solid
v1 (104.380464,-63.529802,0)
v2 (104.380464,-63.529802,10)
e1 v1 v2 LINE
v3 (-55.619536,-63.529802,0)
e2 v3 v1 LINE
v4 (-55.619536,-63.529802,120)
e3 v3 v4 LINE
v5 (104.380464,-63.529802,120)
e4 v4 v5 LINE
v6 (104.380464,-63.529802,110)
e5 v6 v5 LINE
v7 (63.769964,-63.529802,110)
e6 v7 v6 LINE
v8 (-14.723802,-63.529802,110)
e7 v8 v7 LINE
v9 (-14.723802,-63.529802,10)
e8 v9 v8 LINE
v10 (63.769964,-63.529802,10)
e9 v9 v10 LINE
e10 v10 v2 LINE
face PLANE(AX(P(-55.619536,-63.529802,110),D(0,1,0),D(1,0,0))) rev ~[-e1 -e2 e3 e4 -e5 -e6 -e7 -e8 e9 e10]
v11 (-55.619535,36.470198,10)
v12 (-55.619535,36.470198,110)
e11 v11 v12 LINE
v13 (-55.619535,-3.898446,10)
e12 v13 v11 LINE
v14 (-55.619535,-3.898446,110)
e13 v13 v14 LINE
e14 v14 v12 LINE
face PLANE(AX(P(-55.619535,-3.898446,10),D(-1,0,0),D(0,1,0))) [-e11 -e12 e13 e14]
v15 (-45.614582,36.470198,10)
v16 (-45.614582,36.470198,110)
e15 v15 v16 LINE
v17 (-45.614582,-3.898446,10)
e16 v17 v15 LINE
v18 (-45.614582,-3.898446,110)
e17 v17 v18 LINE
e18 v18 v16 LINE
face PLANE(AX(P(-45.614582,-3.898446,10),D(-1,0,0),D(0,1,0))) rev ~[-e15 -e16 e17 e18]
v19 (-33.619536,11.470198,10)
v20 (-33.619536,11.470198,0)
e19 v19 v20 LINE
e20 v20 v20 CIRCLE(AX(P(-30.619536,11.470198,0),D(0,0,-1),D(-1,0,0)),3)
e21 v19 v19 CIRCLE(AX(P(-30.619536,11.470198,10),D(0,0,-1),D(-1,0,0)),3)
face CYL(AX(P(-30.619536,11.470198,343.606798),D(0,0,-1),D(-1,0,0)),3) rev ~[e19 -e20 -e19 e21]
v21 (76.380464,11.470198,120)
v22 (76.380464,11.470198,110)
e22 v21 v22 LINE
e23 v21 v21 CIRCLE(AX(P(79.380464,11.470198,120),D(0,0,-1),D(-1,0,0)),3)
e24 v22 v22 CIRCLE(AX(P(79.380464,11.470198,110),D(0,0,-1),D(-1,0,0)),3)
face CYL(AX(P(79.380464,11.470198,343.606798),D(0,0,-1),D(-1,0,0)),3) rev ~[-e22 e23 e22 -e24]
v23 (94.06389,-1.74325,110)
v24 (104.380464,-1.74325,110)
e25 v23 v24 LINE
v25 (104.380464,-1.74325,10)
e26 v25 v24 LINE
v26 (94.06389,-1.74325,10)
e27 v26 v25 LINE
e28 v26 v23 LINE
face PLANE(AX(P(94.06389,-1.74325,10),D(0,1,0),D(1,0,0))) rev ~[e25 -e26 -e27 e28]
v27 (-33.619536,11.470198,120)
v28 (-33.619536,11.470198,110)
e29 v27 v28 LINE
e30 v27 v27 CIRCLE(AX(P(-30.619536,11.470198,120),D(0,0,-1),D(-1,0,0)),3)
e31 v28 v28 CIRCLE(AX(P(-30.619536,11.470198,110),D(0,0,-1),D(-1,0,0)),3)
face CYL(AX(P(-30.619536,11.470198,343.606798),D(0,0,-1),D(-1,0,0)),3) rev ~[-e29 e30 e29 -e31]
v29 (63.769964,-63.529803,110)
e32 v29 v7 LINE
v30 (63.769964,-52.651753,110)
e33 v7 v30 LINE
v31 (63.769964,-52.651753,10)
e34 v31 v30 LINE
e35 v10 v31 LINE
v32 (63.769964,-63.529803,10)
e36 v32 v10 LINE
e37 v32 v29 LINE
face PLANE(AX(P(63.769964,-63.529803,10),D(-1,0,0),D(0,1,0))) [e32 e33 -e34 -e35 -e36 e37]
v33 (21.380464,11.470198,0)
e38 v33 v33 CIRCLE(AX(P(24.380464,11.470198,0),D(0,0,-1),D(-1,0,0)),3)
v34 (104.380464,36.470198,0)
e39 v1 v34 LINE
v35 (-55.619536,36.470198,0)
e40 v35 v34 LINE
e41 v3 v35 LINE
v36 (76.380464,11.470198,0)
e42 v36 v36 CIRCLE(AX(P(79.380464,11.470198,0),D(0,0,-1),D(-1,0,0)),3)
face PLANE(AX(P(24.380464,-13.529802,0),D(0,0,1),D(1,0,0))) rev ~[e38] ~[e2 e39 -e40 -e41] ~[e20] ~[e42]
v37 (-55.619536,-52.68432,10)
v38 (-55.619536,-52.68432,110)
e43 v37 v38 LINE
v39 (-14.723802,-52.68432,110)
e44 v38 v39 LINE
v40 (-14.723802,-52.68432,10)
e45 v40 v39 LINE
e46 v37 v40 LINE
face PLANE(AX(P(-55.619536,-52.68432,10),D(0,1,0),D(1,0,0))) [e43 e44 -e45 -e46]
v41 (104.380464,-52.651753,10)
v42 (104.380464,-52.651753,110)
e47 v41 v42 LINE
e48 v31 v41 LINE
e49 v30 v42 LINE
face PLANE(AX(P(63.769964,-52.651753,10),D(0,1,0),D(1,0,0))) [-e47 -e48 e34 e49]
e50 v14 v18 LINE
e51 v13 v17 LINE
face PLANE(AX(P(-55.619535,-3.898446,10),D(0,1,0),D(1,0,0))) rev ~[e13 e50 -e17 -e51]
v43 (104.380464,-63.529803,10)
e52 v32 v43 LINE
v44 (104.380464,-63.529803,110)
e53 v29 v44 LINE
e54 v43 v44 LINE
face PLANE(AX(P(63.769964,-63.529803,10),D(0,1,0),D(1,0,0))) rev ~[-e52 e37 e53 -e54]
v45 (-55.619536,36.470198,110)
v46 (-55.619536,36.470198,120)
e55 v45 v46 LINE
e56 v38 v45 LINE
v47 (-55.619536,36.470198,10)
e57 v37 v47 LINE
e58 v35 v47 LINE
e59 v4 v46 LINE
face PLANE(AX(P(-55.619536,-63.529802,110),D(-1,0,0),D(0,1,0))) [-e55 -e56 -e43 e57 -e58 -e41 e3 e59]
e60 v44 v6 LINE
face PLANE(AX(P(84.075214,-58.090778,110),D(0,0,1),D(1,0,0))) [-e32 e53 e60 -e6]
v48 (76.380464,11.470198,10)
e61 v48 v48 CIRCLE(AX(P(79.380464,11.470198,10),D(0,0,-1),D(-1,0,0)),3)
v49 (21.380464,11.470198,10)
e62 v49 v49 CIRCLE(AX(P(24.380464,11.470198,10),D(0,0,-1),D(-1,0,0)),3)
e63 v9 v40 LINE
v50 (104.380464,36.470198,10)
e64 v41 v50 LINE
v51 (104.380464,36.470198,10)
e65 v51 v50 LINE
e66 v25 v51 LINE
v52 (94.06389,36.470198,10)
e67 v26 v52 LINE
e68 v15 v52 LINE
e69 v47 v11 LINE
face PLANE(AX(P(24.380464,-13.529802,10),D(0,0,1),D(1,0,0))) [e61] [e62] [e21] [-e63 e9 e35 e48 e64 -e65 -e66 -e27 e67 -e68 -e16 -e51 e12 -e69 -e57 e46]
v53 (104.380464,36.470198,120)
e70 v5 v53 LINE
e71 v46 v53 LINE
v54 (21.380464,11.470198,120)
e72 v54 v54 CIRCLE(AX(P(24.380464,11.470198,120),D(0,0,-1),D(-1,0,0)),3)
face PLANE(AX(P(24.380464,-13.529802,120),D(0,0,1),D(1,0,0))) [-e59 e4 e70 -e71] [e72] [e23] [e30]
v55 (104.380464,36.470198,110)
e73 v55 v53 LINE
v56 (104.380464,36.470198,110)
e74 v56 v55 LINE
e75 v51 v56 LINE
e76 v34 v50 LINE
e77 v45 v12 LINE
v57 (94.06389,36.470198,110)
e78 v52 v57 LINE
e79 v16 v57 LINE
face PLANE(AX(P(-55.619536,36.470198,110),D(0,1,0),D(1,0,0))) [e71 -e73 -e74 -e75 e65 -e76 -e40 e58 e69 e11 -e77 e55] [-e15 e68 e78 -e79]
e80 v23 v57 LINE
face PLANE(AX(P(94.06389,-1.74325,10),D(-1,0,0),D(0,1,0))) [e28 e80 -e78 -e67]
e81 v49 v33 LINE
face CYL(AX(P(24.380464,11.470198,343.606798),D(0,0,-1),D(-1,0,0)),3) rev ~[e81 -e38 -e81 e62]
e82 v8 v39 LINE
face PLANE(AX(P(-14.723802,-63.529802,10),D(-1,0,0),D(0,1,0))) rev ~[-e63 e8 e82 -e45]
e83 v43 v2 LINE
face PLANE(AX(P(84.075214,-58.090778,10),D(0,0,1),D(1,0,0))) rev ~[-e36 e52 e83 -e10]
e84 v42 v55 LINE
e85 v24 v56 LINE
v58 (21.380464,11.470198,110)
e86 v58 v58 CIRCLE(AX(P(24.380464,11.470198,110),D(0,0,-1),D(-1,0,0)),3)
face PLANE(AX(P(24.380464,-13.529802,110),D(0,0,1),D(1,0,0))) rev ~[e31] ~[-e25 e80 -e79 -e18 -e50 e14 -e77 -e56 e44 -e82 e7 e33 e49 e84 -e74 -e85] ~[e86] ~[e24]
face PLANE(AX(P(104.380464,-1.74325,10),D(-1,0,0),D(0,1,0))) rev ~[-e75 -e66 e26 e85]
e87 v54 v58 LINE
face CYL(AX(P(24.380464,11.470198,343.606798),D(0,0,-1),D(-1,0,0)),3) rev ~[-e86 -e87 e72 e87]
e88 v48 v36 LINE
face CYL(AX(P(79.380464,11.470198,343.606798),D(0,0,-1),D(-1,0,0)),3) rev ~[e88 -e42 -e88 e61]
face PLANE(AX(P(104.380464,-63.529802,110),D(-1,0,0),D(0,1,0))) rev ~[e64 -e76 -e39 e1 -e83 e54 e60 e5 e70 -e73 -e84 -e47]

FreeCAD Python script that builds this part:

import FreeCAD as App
import Part
import Sketcher
Q = App.Units.Quantity


def add_polygon(sketch, points):
    """Adds a closed chain of lines whose ends are joined by coincident constraints."""
    first, n = sketch.GeometryCount, len(points)
    for a, b in zip(points, points[1:] + points[:1]):
        sketch.addGeometry(Part.LineSegment(App.Vector(*a, 0), App.Vector(*b, 0)), False)
    for i in range(n):
        sketch.addConstraint(Sketcher.Constraint("Coincident", first + i, 2, first + (i + 1) % n, 1))

doc = App.newDocument("Part")
body = doc.addObject("PartDesign::Body", "Body")

# Sketch on XY plane
sketch1 = body.newObject("Sketcher::SketchObject", "Sketch")
sketch1.AttachmentSupport = (doc.getObject("XY_Plane"), [""])
sketch1.MapMode = "FlatFace"
add_polygon(sketch1, [(-55.619536, 36.470198), (-55.619536, -63.529802), (104.380464, -63.529802), (104.380464, 36.470198)])  # lines 0-3
sketch1.addConstraint([
    Sketcher.Constraint("Vertical", 0),
    Sketcher.Constraint("Horizontal", 1),
    Sketcher.Constraint("Vertical", 2),
    Sketcher.Constraint("Horizontal", 3),
    Sketcher.Constraint("DistanceX", 1, 1, 1, 2, Q("160 mm")),
    Sketcher.Constraint("DistanceY", 0, 2, 0, 1, Q("100 mm")),
    Sketcher.Constraint("DistanceY", 0, 2, -1, 1, Q("63.529802 mm")),
    Sketcher.Constraint("DistanceX", 0, 2, -1, 1, Q("55.619536 mm")),
])
pad1 = body.newObject("PartDesign::Pad", "Pad")
pad1.Profile = sketch1
pad1.Length = 10

# Sketch on XY plane
sketch2 = body.newObject("Sketcher::SketchObject", "Sketch001")
sketch2.AttachmentSupport = (doc.getObject("XY_Plane"), [""])
sketch2.MapMode = "FlatFace"
sketch2.AttachmentOffset = App.Placement(App.Vector(0, 0, 10), App.Rotation())
add_polygon(sketch2, [(-55.619536, -52.68432), (-55.619536, -63.529802), (-14.723802, -63.529802), (-14.723802, -52.68432)])  # lines 0-3
sketch2.addConstraint([
    Sketcher.Constraint("Vertical", 0),
    Sketcher.Constraint("Horizontal", 1),
    Sketcher.Constraint("Vertical", 2),
    Sketcher.Constraint("Horizontal", 3),
    Sketcher.Constraint("DistanceY", 0, 2, 0, 1, Q("10.845482 mm")),
    Sketcher.Constraint("DistanceY", 0, 2, -1, 1, Q("63.529802 mm")),
    Sketcher.Constraint("DistanceX", 1, 2, -1, 1, Q("14.723802 mm")),
    Sketcher.Constraint("DistanceX", 1, 1, 1, 2, Q("40.895734 mm")),
])
pad2 = body.newObject("PartDesign::Pad", "Pad001")
pad2.Profile = sketch2
pad2.Length = 100

# Sketch on XY plane
sketch3 = body.newObject("Sketcher::SketchObject", "Sketch002")
sketch3.AttachmentSupport = (doc.getObject("XY_Plane"), [""])
sketch3.MapMode = "FlatFace"
sketch3.AttachmentOffset = App.Placement(App.Vector(0, 0, 10), App.Rotation())
add_polygon(sketch3, [(63.769964, -52.651753), (63.769964, -63.529803), (104.380464, -63.529803), (104.380464, -52.651753)])  # lines 0-3
sketch3.addConstraint([
    Sketcher.Constraint("Vertical", 0),
    Sketcher.Constraint("Horizontal", 1),
    Sketcher.Constraint("Vertical", 2),
    Sketcher.Constraint("Horizontal", 3),
    Sketcher.Constraint("DistanceX", 1, 1, 1, 2, Q("40.6105 mm")),
    Sketcher.Constraint("DistanceY", 0, 2, 0, 1, Q("10.878049 mm")),
    Sketcher.Constraint("DistanceX", -1, 1, 0, 2, Q("63.769964 mm")),
    Sketcher.Constraint("DistanceY", 0, 2, -1, 1, Q("63.529803 mm")),
])
pad3 = body.newObject("PartDesign::Pad", "Pad002")
pad3.Profile = sketch3
pad3.Length = 100

# Sketch on XY plane
sketch4 = body.newObject("Sketcher::SketchObject", "Sketch003")
sketch4.AttachmentSupport = (doc.getObject("XY_Plane"), [""])
sketch4.MapMode = "FlatFace"
sketch4.AttachmentOffset = App.Placement(App.Vector(0, 0, 10), App.Rotation())
add_polygon(sketch4, [(94.06389, 36.470198), (94.06389, -1.74325), (104.380464, -1.74325), (104.380464, 36.470198)])  # lines 0-3
sketch4.addConstraint([
    Sketcher.Constraint("Vertical", 0),
    Sketcher.Constraint("Horizontal", 1),
    Sketcher.Constraint("Vertical", 2),
    Sketcher.Constraint("Horizontal", 3),
    Sketcher.Constraint("DistanceY", 0, 2, 0, 1, Q("38.213448 mm")),
    Sketcher.Constraint("DistanceY", -1, 1, 2, 2, Q("36.470198 mm")),
    Sketcher.Constraint("DistanceX", 1, 1, 1, 2, Q("10.316573 mm")),
    Sketcher.Constraint("DistanceX", -1, 1, 0, 2, Q("94.06389 mm")),
])
pad4 = body.newObject("PartDesign::Pad", "Pad003")
pad4.Profile = sketch4
pad4.Length = 100

# Sketch on XY plane
sketch5 = body.newObject("Sketcher::SketchObject", "Sketch004")
sketch5.AttachmentSupport = (doc.getObject("XY_Plane"), [""])
sketch5.MapMode = "FlatFace"
sketch5.AttachmentOffset = App.Placement(App.Vector(0, 0, 10), App.Rotation())
add_polygon(sketch5, [(-55.619535, 36.470198), (-55.619535, -3.898446), (-45.614582, -3.898446), (-45.614582, 36.470198)])  # lines 0-3
sketch5.addConstraint([
    Sketcher.Constraint("Vertical", 0),
    Sketcher.Constraint("Horizontal", 1),
    Sketcher.Constraint("Vertical", 2),
    Sketcher.Constraint("Horizontal", 3),
    Sketcher.Constraint("DistanceY", -1, 1, 2, 2, Q("36.470198 mm")),
    Sketcher.Constraint("DistanceX", 1, 1, 1, 2, Q("10.004953 mm")),
    Sketcher.Constraint("DistanceY", 0, 2, 0, 1, Q("40.368644 mm")),
    Sketcher.Constraint("DistanceX", 0, 2, -1, 1, Q("55.619535 mm")),
])
pad5 = body.newObject("PartDesign::Pad", "Pad004")
pad5.Profile = sketch5
pad5.Length = 100

# Sketch on XY plane
sketch6 = body.newObject("Sketcher::SketchObject", "Sketch005")
sketch6.AttachmentSupport = (doc.getObject("XY_Plane"), [""])
sketch6.MapMode = "FlatFace"
sketch6.AttachmentOffset = App.Placement(App.Vector(0, 0, 110), App.Rotation())
add_polygon(sketch6, [(-55.619536, 36.470198), (-55.619536, -63.529802), (104.380464, -63.529802), (104.380464, 36.470198)])  # lines 0-3
sketch6.addConstraint([
    Sketcher.Constraint("Vertical", 0),
    Sketcher.Constraint("Horizontal", 1),
    Sketcher.Constraint("Vertical", 2),
    Sketcher.Constraint("Horizontal", 3),
    Sketcher.Constraint("DistanceX", 1, 1, 1, 2, Q("160 mm")),
    Sketcher.Constraint("DistanceY", 0, 2, 0, 1, Q("100 mm")),
    Sketcher.Constraint("DistanceY", 0, 2, -1, 1, Q("63.529802 mm")),
    Sketcher.Constraint("DistanceX", 0, 2, -1, 1, Q("55.619536 mm")),
])
pad6 = body.newObject("PartDesign::Pad", "Pad005")
pad6.Profile = sketch6
pad6.Length = 10

# Sketch on XY plane
sketch7 = body.newObject("Sketcher::SketchObject", "Sketch006")
sketch7.AttachmentSupport = (doc.getObject("XY_Plane"), [""])
sketch7.MapMode = "FlatFace"
sketch7.AttachmentOffset = App.Placement(App.Vector(0, 0, 120), App.Rotation())
sketch7.addGeometry([
    Part.Circle(App.Vector(79.380464, 11.470198, 0), App.Vector(0, 0, 1), 3),
    Part.Circle(App.Vector(24.380464, 11.470198, 0), App.Vector(0, 0, 1), 3),
    Part.Circle(App.Vector(-30.619536, 11.470198, 0), App.Vector(0, 0, 1), 3),
], False)
sketch7.addConstraint([
    Sketcher.Constraint("Equal", 0, 1),
    Sketcher.Constraint("Equal", 1, 2),
    Sketcher.Constraint("Horizontal", 0, 3, 1, 3),
    Sketcher.Constraint("Horizontal", 1, 3, 2, 3),
    Sketcher.Constraint("Diameter", 0, Q("6 mm")),
    Sketcher.Constraint("DistanceX", 1, 3, 0, 3, Q("55 mm")),
    Sketcher.Constraint("DistanceX", 2, 3, 1, 3, Q("55 mm")),
    Sketcher.Constraint("DistanceX", -1, 1, 0, 3, Q("79.380464 mm")),
    Sketcher.Constraint("DistanceY", -1, 1, 0, 3, Q("11.470198 mm")),
])
doc.recompute()
hole = body.newObject("PartDesign::Hole", "Hole")
hole.Profile = sketch7
hole.ThreadType = "None"
hole.Diameter = 6
hole.DepthType = "ThroughAll"

doc.recompute()
